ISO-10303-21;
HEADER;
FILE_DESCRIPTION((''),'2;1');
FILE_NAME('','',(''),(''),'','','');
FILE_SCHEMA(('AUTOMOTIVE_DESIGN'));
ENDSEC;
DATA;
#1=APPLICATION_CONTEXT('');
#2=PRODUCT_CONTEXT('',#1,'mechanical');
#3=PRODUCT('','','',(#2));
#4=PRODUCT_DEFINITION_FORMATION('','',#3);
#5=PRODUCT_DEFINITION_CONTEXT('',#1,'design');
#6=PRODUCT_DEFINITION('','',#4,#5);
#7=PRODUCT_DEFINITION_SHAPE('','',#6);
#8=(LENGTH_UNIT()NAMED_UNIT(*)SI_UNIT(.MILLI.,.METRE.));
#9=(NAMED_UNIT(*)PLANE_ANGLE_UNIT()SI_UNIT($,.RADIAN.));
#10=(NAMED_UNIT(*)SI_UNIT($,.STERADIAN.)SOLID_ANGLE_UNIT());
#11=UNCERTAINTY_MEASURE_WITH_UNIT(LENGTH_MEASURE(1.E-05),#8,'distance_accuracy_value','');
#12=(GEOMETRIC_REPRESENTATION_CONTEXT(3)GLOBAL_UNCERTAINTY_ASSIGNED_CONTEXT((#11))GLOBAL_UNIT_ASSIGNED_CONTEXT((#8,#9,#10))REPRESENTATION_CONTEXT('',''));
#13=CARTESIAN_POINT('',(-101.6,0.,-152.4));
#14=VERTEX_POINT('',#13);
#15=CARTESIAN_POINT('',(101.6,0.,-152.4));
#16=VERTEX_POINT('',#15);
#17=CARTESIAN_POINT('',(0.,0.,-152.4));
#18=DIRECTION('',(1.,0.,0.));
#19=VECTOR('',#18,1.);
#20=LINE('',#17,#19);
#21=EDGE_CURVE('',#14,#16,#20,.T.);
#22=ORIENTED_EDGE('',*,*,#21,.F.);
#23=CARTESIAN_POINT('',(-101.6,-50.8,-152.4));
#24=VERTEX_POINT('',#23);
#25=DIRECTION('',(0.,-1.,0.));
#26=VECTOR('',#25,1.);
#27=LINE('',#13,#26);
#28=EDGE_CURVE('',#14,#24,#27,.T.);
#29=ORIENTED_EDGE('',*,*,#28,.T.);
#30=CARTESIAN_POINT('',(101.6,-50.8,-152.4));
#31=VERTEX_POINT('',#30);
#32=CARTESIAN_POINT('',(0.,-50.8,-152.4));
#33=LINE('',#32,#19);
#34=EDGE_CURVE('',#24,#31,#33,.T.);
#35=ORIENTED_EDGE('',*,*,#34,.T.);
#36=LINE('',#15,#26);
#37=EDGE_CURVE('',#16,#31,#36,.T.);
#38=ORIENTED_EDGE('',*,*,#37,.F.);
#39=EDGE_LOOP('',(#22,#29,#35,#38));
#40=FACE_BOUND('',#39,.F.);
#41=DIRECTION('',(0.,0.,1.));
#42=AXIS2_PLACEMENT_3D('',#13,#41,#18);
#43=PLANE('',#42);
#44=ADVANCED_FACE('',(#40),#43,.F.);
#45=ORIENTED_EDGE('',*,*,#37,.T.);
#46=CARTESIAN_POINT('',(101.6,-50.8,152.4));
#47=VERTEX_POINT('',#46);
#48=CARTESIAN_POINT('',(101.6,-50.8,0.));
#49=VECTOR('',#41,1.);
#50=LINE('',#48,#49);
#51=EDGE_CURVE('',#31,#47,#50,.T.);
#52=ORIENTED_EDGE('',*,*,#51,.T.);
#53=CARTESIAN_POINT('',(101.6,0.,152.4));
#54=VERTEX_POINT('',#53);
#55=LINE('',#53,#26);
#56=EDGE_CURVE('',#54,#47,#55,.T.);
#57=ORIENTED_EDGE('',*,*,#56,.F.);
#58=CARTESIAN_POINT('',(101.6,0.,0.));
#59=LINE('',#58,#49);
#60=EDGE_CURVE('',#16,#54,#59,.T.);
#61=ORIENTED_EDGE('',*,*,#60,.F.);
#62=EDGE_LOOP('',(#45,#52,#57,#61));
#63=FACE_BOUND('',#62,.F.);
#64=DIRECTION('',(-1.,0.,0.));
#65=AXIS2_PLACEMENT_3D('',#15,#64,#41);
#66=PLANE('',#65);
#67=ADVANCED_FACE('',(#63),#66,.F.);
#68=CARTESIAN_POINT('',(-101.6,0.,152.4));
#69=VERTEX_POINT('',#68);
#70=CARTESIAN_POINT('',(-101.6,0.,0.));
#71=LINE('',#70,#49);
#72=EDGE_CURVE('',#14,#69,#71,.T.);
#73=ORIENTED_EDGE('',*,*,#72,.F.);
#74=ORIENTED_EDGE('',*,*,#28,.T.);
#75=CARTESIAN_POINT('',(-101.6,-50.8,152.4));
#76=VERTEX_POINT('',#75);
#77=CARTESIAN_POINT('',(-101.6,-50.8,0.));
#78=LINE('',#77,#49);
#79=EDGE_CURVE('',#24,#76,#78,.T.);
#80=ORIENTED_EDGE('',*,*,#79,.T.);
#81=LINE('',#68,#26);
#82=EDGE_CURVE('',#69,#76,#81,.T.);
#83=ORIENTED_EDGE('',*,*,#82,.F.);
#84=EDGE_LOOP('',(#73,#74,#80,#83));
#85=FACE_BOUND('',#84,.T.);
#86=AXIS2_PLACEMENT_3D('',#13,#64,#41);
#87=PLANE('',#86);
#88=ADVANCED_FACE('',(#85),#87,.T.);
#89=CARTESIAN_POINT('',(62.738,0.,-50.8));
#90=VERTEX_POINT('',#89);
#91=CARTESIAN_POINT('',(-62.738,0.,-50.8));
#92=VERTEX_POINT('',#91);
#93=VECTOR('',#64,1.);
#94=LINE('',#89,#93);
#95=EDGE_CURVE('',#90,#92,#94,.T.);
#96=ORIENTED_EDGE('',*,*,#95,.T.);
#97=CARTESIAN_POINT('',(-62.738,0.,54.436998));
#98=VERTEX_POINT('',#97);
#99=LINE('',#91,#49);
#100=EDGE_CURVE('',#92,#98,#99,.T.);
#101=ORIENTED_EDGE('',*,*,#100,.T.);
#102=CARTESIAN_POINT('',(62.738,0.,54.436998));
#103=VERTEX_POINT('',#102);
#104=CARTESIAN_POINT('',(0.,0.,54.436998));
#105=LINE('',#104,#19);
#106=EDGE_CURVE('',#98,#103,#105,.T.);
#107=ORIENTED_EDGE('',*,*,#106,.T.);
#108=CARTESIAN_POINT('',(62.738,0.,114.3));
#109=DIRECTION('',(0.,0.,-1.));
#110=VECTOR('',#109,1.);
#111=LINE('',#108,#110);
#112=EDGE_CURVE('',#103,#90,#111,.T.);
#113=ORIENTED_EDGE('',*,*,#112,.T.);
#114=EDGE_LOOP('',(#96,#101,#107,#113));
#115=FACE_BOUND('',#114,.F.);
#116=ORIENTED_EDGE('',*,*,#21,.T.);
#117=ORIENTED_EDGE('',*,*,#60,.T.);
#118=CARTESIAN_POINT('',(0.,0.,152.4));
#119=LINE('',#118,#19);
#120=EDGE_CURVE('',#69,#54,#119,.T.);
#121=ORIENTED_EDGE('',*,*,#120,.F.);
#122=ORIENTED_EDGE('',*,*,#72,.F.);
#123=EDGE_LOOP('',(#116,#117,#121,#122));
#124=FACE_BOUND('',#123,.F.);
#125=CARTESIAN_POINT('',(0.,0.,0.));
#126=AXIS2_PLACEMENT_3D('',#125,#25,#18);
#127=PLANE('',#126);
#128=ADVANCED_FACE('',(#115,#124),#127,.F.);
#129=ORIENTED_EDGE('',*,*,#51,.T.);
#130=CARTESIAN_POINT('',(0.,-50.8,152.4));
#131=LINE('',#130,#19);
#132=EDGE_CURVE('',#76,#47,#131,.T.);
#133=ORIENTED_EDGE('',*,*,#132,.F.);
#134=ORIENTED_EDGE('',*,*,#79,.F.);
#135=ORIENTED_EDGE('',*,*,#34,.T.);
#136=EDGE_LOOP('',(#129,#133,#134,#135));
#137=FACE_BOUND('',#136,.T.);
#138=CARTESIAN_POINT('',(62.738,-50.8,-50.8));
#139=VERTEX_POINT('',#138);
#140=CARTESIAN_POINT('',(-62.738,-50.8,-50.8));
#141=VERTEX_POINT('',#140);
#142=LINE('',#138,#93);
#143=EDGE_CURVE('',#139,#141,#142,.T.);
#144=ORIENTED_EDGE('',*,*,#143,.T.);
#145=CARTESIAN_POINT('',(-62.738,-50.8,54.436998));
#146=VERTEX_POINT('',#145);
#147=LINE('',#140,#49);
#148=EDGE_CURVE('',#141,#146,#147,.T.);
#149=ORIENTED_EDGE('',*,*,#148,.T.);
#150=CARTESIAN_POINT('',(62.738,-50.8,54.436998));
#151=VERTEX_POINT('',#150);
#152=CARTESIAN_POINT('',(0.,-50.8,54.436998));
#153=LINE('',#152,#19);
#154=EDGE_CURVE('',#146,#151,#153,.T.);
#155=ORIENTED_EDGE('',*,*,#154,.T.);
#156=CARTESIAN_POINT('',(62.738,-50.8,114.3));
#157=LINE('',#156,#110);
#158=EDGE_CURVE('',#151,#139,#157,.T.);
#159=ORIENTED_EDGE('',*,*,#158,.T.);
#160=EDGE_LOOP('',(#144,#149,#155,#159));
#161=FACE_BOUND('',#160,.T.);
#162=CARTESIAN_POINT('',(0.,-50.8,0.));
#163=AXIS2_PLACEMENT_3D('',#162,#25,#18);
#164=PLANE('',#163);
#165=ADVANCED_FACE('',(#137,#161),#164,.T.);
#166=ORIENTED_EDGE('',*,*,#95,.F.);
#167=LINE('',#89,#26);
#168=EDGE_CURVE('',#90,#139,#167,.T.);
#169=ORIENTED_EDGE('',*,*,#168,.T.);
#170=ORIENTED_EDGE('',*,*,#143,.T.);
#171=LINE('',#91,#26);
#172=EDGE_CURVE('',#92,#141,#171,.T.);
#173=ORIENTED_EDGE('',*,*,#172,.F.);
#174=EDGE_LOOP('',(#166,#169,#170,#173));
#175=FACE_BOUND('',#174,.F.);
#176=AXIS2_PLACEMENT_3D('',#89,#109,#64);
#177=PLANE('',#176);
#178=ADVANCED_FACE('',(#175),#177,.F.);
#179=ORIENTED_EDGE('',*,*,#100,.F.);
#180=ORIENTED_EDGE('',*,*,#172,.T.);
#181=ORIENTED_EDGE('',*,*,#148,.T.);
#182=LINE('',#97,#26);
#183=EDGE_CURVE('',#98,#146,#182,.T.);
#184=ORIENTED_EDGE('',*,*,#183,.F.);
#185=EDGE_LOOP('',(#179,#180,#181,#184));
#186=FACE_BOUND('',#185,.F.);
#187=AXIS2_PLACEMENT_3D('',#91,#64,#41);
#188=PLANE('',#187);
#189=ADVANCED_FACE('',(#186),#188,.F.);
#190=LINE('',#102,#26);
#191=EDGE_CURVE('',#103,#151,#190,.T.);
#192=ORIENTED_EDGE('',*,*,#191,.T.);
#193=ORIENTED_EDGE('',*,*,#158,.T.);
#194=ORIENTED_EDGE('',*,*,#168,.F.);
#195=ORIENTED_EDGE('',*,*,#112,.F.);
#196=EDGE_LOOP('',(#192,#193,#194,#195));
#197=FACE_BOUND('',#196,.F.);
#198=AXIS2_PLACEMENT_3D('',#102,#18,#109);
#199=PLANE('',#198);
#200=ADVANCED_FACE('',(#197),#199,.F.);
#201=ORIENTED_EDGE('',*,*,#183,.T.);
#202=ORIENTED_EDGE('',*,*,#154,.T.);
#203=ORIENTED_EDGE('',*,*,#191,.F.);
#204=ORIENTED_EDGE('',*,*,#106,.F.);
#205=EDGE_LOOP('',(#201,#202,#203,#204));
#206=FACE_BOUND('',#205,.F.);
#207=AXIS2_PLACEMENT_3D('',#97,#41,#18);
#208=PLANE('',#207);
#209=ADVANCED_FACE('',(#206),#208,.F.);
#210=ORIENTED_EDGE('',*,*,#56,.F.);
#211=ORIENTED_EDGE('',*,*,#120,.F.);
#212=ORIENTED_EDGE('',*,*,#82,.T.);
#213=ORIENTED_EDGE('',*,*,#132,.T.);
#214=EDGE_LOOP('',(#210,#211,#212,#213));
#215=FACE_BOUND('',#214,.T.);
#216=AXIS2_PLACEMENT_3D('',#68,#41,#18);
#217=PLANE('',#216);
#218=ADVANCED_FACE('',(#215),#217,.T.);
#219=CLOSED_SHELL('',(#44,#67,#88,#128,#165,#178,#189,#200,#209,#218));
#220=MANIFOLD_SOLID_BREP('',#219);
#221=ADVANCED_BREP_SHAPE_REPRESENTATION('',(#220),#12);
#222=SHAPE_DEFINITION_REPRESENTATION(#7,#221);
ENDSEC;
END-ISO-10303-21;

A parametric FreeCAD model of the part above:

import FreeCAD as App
import Part
import Sketcher
Q = App.Units.Quantity


def add_polygon(sketch, points):
    """Adds a closed chain of lines whose ends are joined by coincident constraints."""
    first, n = sketch.GeometryCount, len(points)
    for a, b in zip(points, points[1:] + points[:1]):
        sketch.addGeometry(Part.LineSegment(App.Vector(*a, 0), App.Vector(*b, 0)), False)
    for i in range(n):
        sketch.addConstraint(Sketcher.Constraint("Coincident", first + i, 2, first + (i + 1) % n, 1))

doc = App.newDocument("Part")
params = doc.addObject("Spreadsheet::Sheet", "Params")
for row, (alias, value) in enumerate([
    ("sketch1_width", "8 in"),
    ("sketch1_height", "12 in"),
    ("sketch1_width2", "4.94 in"),
    ("pad1_length", "2 in"),
], start=1):
    params.set(f"A{row}", alias)
    params.set(f"B{row}", "=" + value)
    params.setAlias(f"B{row}", alias)

body = doc.addObject("PartDesign::Body", "Body")

sketch1 = body.newObject("Sketcher::SketchObject", "Sketch")
sketch1.AttachmentSupport = (doc.getObject("XZ_Plane"), [""])
sketch1.MapMode = "FlatFace"
add_polygon(sketch1, [(-102, 152), (-102, -152), (102, -152), (102, 152)])
add_polygon(sketch1, [(-63, -51), (-63, 54), (63, 54), (63, -51)])
sketch1.addConstraint([
    Sketcher.Constraint("Vertical", 0),
    Sketcher.Constraint("Horizontal", 1),
    Sketcher.Constraint("Vertical", 2),
    Sketcher.Constraint("Horizontal", 3),
    Sketcher.Constraint("Vertical", 4),
    Sketcher.Constraint("Horizontal", 5),
    Sketcher.Constraint("Vertical", 6),
    Sketcher.Constraint("Horizontal", 7),
    Sketcher.Constraint("Symmetric", 0, 2, 2, 2, -1, 1),
    Sketcher.Constraint("DistanceX", 1, 1, 1, 2, Q("8 in")),
    Sketcher.Constraint("DistanceY", 0, 2, 0, 1, Q("12 in")),
    Sketcher.Constraint("DistanceY", 6, 2, -1, 1, Q("2 in")),
    Sketcher.Constraint("DistanceX", 5, 1, 5, 2, Q("4.94 in")),
    Sketcher.Constraint("DistanceX", 4, 2, -1, 1, Q("2.47 in")),
    Sketcher.Constraint("DistanceY", 4, 1, 4, 2, Q("105.236998 mm")),
])
sketch1.setExpression("Constraints[17]", "Params.sketch1_width")
sketch1.setExpression("Constraints[18]", "Params.sketch1_height")
sketch1.setExpression("Constraints[20]", "Params.sketch1_width2")
pad1 = body.newObject("PartDesign::Pad", "Pad")
pad1.Profile = sketch1
pad1.setExpression("Length", "Params.pad1_length")

doc.recompute()
